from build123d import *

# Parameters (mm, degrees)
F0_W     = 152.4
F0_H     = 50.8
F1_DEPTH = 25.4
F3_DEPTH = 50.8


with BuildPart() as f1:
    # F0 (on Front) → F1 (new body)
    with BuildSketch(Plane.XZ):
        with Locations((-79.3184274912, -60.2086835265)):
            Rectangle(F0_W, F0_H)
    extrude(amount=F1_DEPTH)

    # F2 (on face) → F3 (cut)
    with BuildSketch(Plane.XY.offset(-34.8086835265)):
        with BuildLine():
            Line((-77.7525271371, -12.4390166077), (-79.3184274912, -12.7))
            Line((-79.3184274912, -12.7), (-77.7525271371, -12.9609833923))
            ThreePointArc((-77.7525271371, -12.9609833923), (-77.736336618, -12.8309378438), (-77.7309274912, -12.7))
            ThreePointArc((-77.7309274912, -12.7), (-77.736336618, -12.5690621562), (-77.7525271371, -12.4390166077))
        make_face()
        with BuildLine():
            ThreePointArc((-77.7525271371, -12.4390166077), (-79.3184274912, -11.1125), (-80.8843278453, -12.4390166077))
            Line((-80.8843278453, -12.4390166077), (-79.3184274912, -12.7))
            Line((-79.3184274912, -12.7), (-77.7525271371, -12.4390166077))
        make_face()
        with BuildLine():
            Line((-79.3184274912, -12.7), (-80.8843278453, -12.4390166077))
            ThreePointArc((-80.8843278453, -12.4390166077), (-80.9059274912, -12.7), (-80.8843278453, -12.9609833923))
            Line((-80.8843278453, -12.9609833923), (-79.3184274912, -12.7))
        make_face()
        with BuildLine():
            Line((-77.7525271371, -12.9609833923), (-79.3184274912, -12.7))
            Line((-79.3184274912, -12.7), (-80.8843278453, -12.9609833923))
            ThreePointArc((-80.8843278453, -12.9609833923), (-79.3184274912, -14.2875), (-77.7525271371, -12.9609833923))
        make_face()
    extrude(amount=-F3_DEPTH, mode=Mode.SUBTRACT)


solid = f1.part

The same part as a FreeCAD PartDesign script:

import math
import FreeCAD as App
import Part
import Sketcher
Q = App.Units.Quantity

doc = App.newDocument("Part")
body = doc.addObject("PartDesign::Body", "Body")

sketch1 = body.newObject("Sketcher::SketchObject", "Sketch")
sketch1.AttachmentSupport = (doc.getObject("XZ_Plane"), [""])
sketch1.MapMode = "FlatFace"
sketch1.addGeometry([
    Part.LineSegment(App.Vector(-156, -35, 0), App.Vector(-156, -86, 0)),
    Part.LineSegment(App.Vector(-156, -86, 0), App.Vector(-3, -86, 0)),
    Part.LineSegment(App.Vector(-3, -86, 0), App.Vector(-3, -35, 0)),
    Part.LineSegment(App.Vector(-3, -35, 0), App.Vector(-156, -35, 0)),
], False)
sketch1.addConstraint([
    Sketcher.Constraint("Coincident", 0, 2, 1, 1),
    Sketcher.Constraint("Coincident", 1, 2, 2, 1),
    Sketcher.Constraint("Coincident", 2, 2, 3, 1),
    Sketcher.Constraint("Coincident", 3, 2, 0, 1),
    Sketcher.Constraint("Vertical", 0),
    Sketcher.Constraint("Horizontal", 1),
    Sketcher.Constraint("Vertical", 2),
    Sketcher.Constraint("Horizontal", 3),
    Sketcher.Constraint("DistanceX", 1, 1, 1, 2, Q("6 in")),
    Sketcher.Constraint("DistanceY", 0, 2, 0, 1, Q("2 in")),
    Sketcher.Constraint("DistanceX", 0, 2, -1, 1, Q("155.518427 mm")),
    Sketcher.Constraint("DistanceY", 0, 2, -1, 1, Q("85.608684 mm")),
])
pad1 = body.newObject("PartDesign::Pad", "Pad")
pad1.Profile = sketch1
pad1.Length = Q("1 in")

sketch2 = body.newObject("Sketcher::SketchObject", "Sketch001")
sketch2.AttachmentSupport = (doc.getObject("XY_Plane"), [""])
sketch2.MapMode = "FlatFace"
sketch2.AttachmentOffset = App.Placement(App.Vector(0, 0, -34.808684), App.Rotation())
sketch2.addGeometry([
    Part.ArcOfCircle(Part.Circle(App.Vector(-79.32, -12.7, 0), App.Vector(0, 0, 1), 1.59), math.radians(-9.46), math.radians(0)),
    Part.ArcOfCircle(Part.Circle(App.Vector(-79.32, -12.7, 0), App.Vector(0, 0, 1), 1.59), math.radians(0), math.radians(9.46)),
    Part.ArcOfCircle(Part.Circle(App.Vector(-79.32, -12.7, 0), App.Vector(0, 0, 1), 1.59), math.radians(9), math.radians(171)),
    Part.ArcOfCircle(Part.Circle(App.Vector(-79.32, -12.7, 0), App.Vector(0, 0, 1), 1.59), math.radians(170.54), math.radians(189.46)),
    Part.ArcOfCircle(Part.Circle(App.Vector(-79.32, -12.7, 0), App.Vector(0, 0, 1), 1.59), math.radians(-171), math.radians(-9)),
], False)
sketch2.addConstraint([
    Sketcher.Constraint("Tangent", 0, 2, 1, 1),
    Sketcher.Constraint("Tangent", 1, 2, 2, 1),
    Sketcher.Constraint("Tangent", 2, 2, 3, 1),
    Sketcher.Constraint("Tangent", 3, 2, 4, 1),
    Sketcher.Constraint("Tangent", 4, 2, 0, 1),
    Sketcher.Constraint("Coincident", 2, 3, 0, 3),
    Sketcher.Constraint("Horizontal", 4, 3, 0, 2),
    Sketcher.Constraint("Horizontal", 1, 2, 2, 2),
    Sketcher.Constraint("Horizontal", 3, 2, 4, 2),
    Sketcher.Constraint("Vertical", 2, 2, 3, 2),
    Sketcher.Constraint("Radius", 0, Q("0.0625 in")),
    Sketcher.Constraint("DistanceY", 0, 3, -1, 1, Q("0.5 in")),
    Sketcher.Constraint("DistanceX", 1, 2, 0, 2, Q("0.0216 mm")),
    Sketcher.Constraint("DistanceX", 0, 3, -1, 1, Q("79.318427 mm")),
])
pocket1 = body.newObject("PartDesign::Pocket", "Pocket")
pocket1.Profile = sketch2
pocket1.Length = Q("2 in")

doc.recompute()
